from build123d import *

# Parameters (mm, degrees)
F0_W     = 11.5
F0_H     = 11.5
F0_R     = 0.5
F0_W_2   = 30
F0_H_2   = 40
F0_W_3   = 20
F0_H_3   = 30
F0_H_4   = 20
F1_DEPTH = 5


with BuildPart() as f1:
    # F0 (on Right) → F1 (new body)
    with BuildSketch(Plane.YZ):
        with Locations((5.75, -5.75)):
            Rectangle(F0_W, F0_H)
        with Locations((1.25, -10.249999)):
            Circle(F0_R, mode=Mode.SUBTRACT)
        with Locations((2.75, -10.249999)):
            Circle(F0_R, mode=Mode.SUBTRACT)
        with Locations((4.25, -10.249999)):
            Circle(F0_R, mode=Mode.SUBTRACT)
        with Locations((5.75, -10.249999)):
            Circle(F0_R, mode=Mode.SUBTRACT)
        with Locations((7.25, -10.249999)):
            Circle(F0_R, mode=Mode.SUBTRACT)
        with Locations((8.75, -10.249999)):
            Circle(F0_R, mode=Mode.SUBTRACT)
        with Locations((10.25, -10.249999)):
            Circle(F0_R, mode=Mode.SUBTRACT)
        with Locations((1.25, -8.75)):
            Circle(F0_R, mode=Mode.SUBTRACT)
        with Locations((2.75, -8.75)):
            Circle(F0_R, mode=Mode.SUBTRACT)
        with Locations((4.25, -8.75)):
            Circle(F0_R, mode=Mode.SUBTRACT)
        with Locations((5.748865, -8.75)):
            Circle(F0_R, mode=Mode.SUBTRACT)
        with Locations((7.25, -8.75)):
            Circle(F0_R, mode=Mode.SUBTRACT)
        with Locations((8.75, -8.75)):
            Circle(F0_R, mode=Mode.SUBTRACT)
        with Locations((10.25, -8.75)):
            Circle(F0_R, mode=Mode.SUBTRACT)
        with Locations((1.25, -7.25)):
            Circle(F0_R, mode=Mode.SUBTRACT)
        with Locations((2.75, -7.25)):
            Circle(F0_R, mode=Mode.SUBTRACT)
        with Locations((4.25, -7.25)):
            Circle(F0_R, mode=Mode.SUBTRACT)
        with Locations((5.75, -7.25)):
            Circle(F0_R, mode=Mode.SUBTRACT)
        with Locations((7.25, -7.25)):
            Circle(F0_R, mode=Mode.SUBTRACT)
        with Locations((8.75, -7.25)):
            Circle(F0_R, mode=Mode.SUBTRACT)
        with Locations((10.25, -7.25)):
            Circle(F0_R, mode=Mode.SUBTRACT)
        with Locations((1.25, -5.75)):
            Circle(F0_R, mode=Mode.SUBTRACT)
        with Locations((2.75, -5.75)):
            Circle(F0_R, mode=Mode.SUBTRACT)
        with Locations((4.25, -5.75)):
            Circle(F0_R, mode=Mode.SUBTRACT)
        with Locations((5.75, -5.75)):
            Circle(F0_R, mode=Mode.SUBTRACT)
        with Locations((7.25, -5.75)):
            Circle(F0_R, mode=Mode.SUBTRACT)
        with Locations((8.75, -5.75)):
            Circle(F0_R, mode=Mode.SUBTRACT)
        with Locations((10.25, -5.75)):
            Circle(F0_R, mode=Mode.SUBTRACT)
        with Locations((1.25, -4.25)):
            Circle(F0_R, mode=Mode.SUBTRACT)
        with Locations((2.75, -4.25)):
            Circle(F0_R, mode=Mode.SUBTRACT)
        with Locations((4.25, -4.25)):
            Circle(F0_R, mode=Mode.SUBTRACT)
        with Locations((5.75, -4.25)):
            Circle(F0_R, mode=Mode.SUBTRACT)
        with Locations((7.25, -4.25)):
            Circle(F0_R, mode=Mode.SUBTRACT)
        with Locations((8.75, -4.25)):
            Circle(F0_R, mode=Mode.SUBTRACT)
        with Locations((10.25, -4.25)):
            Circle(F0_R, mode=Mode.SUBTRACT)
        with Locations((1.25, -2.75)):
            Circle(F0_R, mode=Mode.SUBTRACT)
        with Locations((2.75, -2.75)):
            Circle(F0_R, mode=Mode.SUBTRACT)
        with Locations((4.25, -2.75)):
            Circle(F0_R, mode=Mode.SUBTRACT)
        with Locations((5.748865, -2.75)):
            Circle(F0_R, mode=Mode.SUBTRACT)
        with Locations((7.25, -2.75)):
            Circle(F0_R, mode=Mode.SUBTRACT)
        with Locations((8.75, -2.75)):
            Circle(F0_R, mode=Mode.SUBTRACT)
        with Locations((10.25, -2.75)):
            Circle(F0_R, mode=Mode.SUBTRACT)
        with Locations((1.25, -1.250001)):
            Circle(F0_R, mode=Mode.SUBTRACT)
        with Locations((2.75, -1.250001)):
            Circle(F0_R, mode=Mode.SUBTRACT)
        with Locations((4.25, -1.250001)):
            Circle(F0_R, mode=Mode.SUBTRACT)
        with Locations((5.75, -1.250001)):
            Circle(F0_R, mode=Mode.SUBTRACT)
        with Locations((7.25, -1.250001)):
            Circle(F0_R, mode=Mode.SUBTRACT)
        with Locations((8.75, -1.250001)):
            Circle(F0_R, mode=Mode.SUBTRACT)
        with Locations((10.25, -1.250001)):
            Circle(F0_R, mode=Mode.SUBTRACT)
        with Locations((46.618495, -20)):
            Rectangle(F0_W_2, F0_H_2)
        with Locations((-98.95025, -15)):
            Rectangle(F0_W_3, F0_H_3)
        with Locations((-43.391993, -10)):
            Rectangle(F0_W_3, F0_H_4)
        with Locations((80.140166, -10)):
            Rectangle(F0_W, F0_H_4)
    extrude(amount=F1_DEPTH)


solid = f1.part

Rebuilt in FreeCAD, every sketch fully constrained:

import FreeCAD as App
import Part
import Sketcher
from FreeCAD import Vector
Q = App.Units.Quantity

doc = App.newDocument("Part")
body = doc.addObject("PartDesign::Body", "Body")
body.AllowCompound = True

sketch1 = body.newObject("Sketcher::SketchObject", "Sketch")
sketch1.AttachmentSupport = (doc.getObject("YZ_Plane"), [""])
sketch1.MapMode = "FlatFace"
sketch1.addGeometry([
    Part.LineSegment(Vector(0, 0, 0), Vector(0, -11.5, 0)),
    Part.LineSegment(Vector(0, -11.5, 0), Vector(11.5, -11.5, 0)),
    Part.LineSegment(Vector(11.5, -11.5, 0), Vector(11.5, 0, 0)),
    Part.LineSegment(Vector(11.5, 0, 0), Vector(0, 0, 0)),
    Part.Circle(Vector(1.2, -10.2, 0), Vector(0, 0, 1), 0.5),
    Part.Circle(Vector(2.8, -10.2, 0), Vector(0, 0, 1), 0.5),
    Part.Circle(Vector(1.2, -8.8, 0), Vector(0, 0, 1), 0.5),
    Part.Circle(Vector(2.8, -8.8, 0), Vector(0, 0, 1), 0.5),
    Part.Circle(Vector(4.2, -10.2, 0), Vector(0, 0, 1), 0.5),
    Part.Circle(Vector(4.2, -8.8, 0), Vector(0, 0, 1), 0.5),
    Part.Circle(Vector(5.7, -8.8, 0), Vector(0, 0, 1), 0.5),
    Part.Circle(Vector(1.2, -7.2, 0), Vector(0, 0, 1), 0.5),
    Part.Circle(Vector(2.8, -7.2, 0), Vector(0, 0, 1), 0.5),
    Part.Circle(Vector(4.2, -7.2, 0), Vector(0, 0, 1), 0.5),
    Part.Circle(Vector(5.8, -10.2, 0), Vector(0, 0, 1), 0.5),
    Part.Circle(Vector(7.2, -10.2, 0), Vector(0, 0, 1), 0.5),
    Part.Circle(Vector(7.2, -8.8, 0), Vector(0, 0, 1), 0.5),
    Part.Circle(Vector(8.8, -10.2, 0), Vector(0, 0, 1), 0.5),
    Part.Circle(Vector(10.2, -10.2, 0), Vector(0, 0, 1), 0.5),
    Part.Circle(Vector(8.8, -8.8, 0), Vector(0, 0, 1), 0.5),
    Part.Circle(Vector(10.2, -8.8, 0), Vector(0, 0, 1), 0.5),
    Part.Circle(Vector(5.8, -7.2, 0), Vector(0, 0, 1), 0.5),
    Part.Circle(Vector(7.2, -7.2, 0), Vector(0, 0, 1), 0.5),
    Part.Circle(Vector(8.8, -7.2, 0), Vector(0, 0, 1), 0.5),
    Part.Circle(Vector(10.2, -7.2, 0), Vector(0, 0, 1), 0.5),
    Part.Circle(Vector(1.2, -5.8, 0), Vector(0, 0, 1), 0.5),
    Part.Circle(Vector(2.8, -5.8, 0), Vector(0, 0, 1), 0.5),
    Part.Circle(Vector(1.2, -4.2, 0), Vector(0, 0, 1), 0.5),
    Part.Circle(Vector(2.8, -4.2, 0), Vector(0, 0, 1), 0.5),
    Part.Circle(Vector(4.2, -5.8, 0), Vector(0, 0, 1), 0.5),
    Part.Circle(Vector(4.2, -4.2, 0), Vector(0, 0, 1), 0.5),
    Part.Circle(Vector(1.2, -2.8, 0), Vector(0, 0, 1), 0.5),
    Part.Circle(Vector(2.8, -2.8, 0), Vector(0, 0, 1), 0.5),
    Part.Circle(Vector(1.2, -1.3, 0), Vector(0, 0, 1), 0.5),
    Part.Circle(Vector(2.8, -1.3, 0), Vector(0, 0, 1), 0.5),
    Part.Circle(Vector(4.2, -2.8, 0), Vector(0, 0, 1), 0.5),
    Part.Circle(Vector(5.7, -2.8, 0), Vector(0, 0, 1), 0.5),
    Part.Circle(Vector(4.2, -1.3, 0), Vector(0, 0, 1), 0.5),
    Part.Circle(Vector(5.8, -5.8, 0), Vector(0, 0, 1), 0.5),
    Part.Circle(Vector(7.2, -5.8, 0), Vector(0, 0, 1), 0.5),
    Part.Circle(Vector(5.8, -4.2, 0), Vector(0, 0, 1), 0.5),
    Part.Circle(Vector(7.2, -4.2, 0), Vector(0, 0, 1), 0.5),
    Part.Circle(Vector(8.8, -5.8, 0), Vector(0, 0, 1), 0.5),
    Part.Circle(Vector(10.2, -5.8, 0), Vector(0, 0, 1), 0.5),
    Part.Circle(Vector(8.8, -4.2, 0), Vector(0, 0, 1), 0.5),
    Part.Circle(Vector(10.2, -4.2, 0), Vector(0, 0, 1), 0.5),
    Part.Circle(Vector(7.2, -2.8, 0), Vector(0, 0, 1), 0.5),
    Part.Circle(Vector(5.8, -1.3, 0), Vector(0, 0, 1), 0.5),
    Part.Circle(Vector(7.2, -1.3, 0), Vector(0, 0, 1), 0.5),
    Part.Circle(Vector(8.8, -2.8, 0), Vector(0, 0, 1), 0.5),
    Part.Circle(Vector(10.2, -2.8, 0), Vector(0, 0, 1), 0.5),
    Part.Circle(Vector(8.8, -1.3, 0), Vector(0, 0, 1), 0.5),
    Part.Circle(Vector(10.2, -1.3, 0), Vector(0, 0, 1), 0.5),
    Part.LineSegment(Vector(31.6, 0, 0), Vector(31.6, -40, 0)),
    Part.LineSegment(Vector(31.6, -40, 0), Vector(61.6, -40, 0)),
    Part.LineSegment(Vector(61.6, -40, 0), Vector(61.6, 0, 0)),
    Part.LineSegment(Vector(61.6, 0, 0), Vector(31.6, 0, 0)),
    Part.LineSegment(Vector(-109, 0, 0), Vector(-109, -30, 0)),
    Part.LineSegment(Vector(-109, -30, 0), Vector(-89, -30, 0)),
    Part.LineSegment(Vector(-89, -30, 0), Vector(-89, 0, 0)),
    Part.LineSegment(Vector(-89, 0, 0), Vector(-109, 0, 0)),
    Part.LineSegment(Vector(-53.4, 0, 0), Vector(-53.4, -20, 0)),
    Part.LineSegment(Vector(-53.4, -20, 0), Vector(-33.4, -20, 0)),
    Part.LineSegment(Vector(-33.4, -20, 0), Vector(-33.4, 0, 0)),
    Part.LineSegment(Vector(-33.4, 0, 0), Vector(-53.4, 0, 0)),
    Part.LineSegment(Vector(74.4, 0, 0), Vector(74.4, -20, 0)),
    Part.LineSegment(Vector(74.4, -20, 0), Vector(85.9, -20, 0)),
    Part.LineSegment(Vector(85.9, -20, 0), Vector(85.9, 0, 0)),
    Part.LineSegment(Vector(85.9, 0, 0), Vector(74.4, 0, 0)),
], False)
sketch1.addConstraint([
    Sketcher.Constraint("Coincident", 0, 2, 1, 1),
    Sketcher.Constraint("Coincident", 1, 2, 2, 1),
    Sketcher.Constraint("Coincident", 2, 2, 3, 1),
    Sketcher.Constraint("Coincident", 3, 2, 0, 1),
    Sketcher.Constraint("Coincident", 53, 2, 54, 1),
    Sketcher.Constraint("Coincident", 54, 2, 55, 1),
    Sketcher.Constraint("Coincident", 55, 2, 56, 1),
    Sketcher.Constraint("Coincident", 56, 2, 53, 1),
    Sketcher.Constraint("Coincident", 57, 2, 58, 1),
    Sketcher.Constraint("Coincident", 58, 2, 59, 1),
    Sketcher.Constraint("Coincident", 59, 2, 60, 1),
    Sketcher.Constraint("Coincident", 60, 2, 57, 1),
    Sketcher.Constraint("Coincident", 61, 2, 62, 1),
    Sketcher.Constraint("Coincident", 62, 2, 63, 1),
    Sketcher.Constraint("Coincident", 63, 2, 64, 1),
    Sketcher.Constraint("Coincident", 64, 2, 61, 1),
    Sketcher.Constraint("Coincident", 65, 2, 66, 1),
    Sketcher.Constraint("Coincident", 66, 2, 67, 1),
    Sketcher.Constraint("Coincident", 67, 2, 68, 1),
    Sketcher.Constraint("Coincident", 68, 2, 65, 1),
    Sketcher.Constraint("Vertical", 0),
    Sketcher.Constraint("Horizontal", 1),
    Sketcher.Constraint("Vertical", 2),
    Sketcher.Constraint("Horizontal", 3),
    Sketcher.Constraint("Vertical", 53),
    Sketcher.Constraint("Horizontal", 54),
    Sketcher.Constraint("Vertical", 55),
    Sketcher.Constraint("Horizontal", 56),
    Sketcher.Constraint("Vertical", 57),
    Sketcher.Constraint("Horizontal", 58),
    Sketcher.Constraint("Vertical", 59),
    Sketcher.Constraint("Horizontal", 60),
    Sketcher.Constraint("Vertical", 61),
    Sketcher.Constraint("Horizontal", 62),
    Sketcher.Constraint("Vertical", 63),
    Sketcher.Constraint("Horizontal", 64),
    Sketcher.Constraint("Vertical", 65),
    Sketcher.Constraint("Horizontal", 66),
    Sketcher.Constraint("Vertical", 67),
    Sketcher.Constraint("Horizontal", 68),
    Sketcher.Constraint("Coincident", 3, 2, -1, 1),
    Sketcher.Constraint("Equal", 4, 5),
    Sketcher.Constraint("Equal", 5, 6),
    Sketcher.Constraint("Equal", 6, 7),
    Sketcher.Constraint("Equal", 7, 8),
    Sketcher.Constraint("Equal", 8, 9),
    Sketcher.Constraint("Equal", 9, 10),
    Sketcher.Constraint("Equal", 10, 11),
    Sketcher.Constraint("Equal", 11, 12),
    Sketcher.Constraint("Equal", 12, 13),
    Sketcher.Constraint("Equal", 13, 14),
    Sketcher.Constraint("Equal", 14, 15),
    Sketcher.Constraint("Equal", 15, 16),
    Sketcher.Constraint("Equal", 16, 17),
    Sketcher.Constraint("Equal", 17, 18),
    Sketcher.Constraint("Equal", 18, 19),
    Sketcher.Constraint("Equal", 19, 20),
    Sketcher.Constraint("Equal", 20, 21),
    Sketcher.Constraint("Equal", 21, 22),
    Sketcher.Constraint("Equal", 22, 23),
    Sketcher.Constraint("Equal", 23, 24),
    Sketcher.Constraint("Equal", 24, 25),
    Sketcher.Constraint("Equal", 25, 26),
    Sketcher.Constraint("Equal", 26, 27),
    Sketcher.Constraint("Equal", 27, 28),
    Sketcher.Constraint("Equal", 28, 29),
    Sketcher.Constraint("Equal", 29, 30),
    Sketcher.Constraint("Equal", 30, 31),
    Sketcher.Constraint("Equal", 31, 32),
    Sketcher.Constraint("Equal", 32, 33),
    Sketcher.Constraint("Equal", 33, 34),
    Sketcher.Constraint("Equal", 34, 35),
    Sketcher.Constraint("Equal", 35, 36),
    Sketcher.Constraint("Equal", 36, 37),
    Sketcher.Constraint("Equal", 37, 38),
    Sketcher.Constraint("Equal", 38, 39),
    Sketcher.Constraint("Equal", 39, 40),
    Sketcher.Constraint("Equal", 40, 41),
    Sketcher.Constraint("Equal", 41, 42),
    Sketcher.Constraint("Equal", 42, 43),
    Sketcher.Constraint("Equal", 43, 44),
    Sketcher.Constraint("Equal", 44, 45),
    Sketcher.Constraint("Equal", 45, 46),
    Sketcher.Constraint("Equal", 46, 47),
    Sketcher.Constraint("Equal", 47, 48),
    Sketcher.Constraint("Equal", 48, 49),
    Sketcher.Constraint("Equal", 49, 50),
    Sketcher.Constraint("Equal", 50, 51),
    Sketcher.Constraint("Equal", 51, 52),
    Sketcher.Constraint("PointOnObject", 55, 2, -1),
    Sketcher.Constraint("PointOnObject", 59, 2, -1),
    Sketcher.Constraint("PointOnObject", 63, 2, -1),
    Sketcher.Constraint("PointOnObject", 67, 2, -1),
    Sketcher.Constraint("Horizontal", 4, 3, 5, 3),
    Sketcher.Constraint("Horizontal", 6, 3, 7, 3),
    Sketcher.Constraint("Horizontal", 5, 3, 8, 3),
    Sketcher.Constraint("Horizontal", 7, 3, 9, 3),
    Sketcher.Constraint("Horizontal", 9, 3, 10, 3),
    Sketcher.Constraint("Horizontal", 11, 3, 12, 3),
    Sketcher.Constraint("Horizontal", 12, 3, 13, 3),
    Sketcher.Constraint("Horizontal", 8, 3, 14, 3),
    Sketcher.Constraint("Horizontal", 14, 3, 15, 3),
    Sketcher.Constraint("Horizontal", 10, 3, 16, 3),
    Sketcher.Constraint("Horizontal", 15, 3, 17, 3),
    Sketcher.Constraint("Horizontal", 17, 3, 18, 3),
    Sketcher.Constraint("Horizontal", 16, 3, 19, 3),
    Sketcher.Constraint("Horizontal", 19, 3, 20, 3),
    Sketcher.Constraint("Horizontal", 13, 3, 21, 3),
    Sketcher.Constraint("Horizontal", 21, 3, 22, 3),
    Sketcher.Constraint("Horizontal", 22, 3, 23, 3),
    Sketcher.Constraint("Horizontal", 23, 3, 24, 3),
    Sketcher.Constraint("Horizontal", 25, 3, 26, 3),
    Sketcher.Constraint("Horizontal", 27, 3, 28, 3),
    Sketcher.Constraint("Horizontal", 26, 3, 29, 3),
    Sketcher.Constraint("Horizontal", 28, 3, 30, 3),
    Sketcher.Constraint("Horizontal", 31, 3, 32, 3),
    Sketcher.Constraint("Horizontal", 33, 3, 34, 3),
    Sketcher.Constraint("Horizontal", 32, 3, 35, 3),
    Sketcher.Constraint("Horizontal", 35, 3, 36, 3),
    Sketcher.Constraint("Horizontal", 34, 3, 37, 3),
    Sketcher.Constraint("Horizontal", 29, 3, 38, 3),
    Sketcher.Constraint("Horizontal", 38, 3, 39, 3),
    Sketcher.Constraint("Horizontal", 30, 3, 40, 3),
    Sketcher.Constraint("Horizontal", 40, 3, 41, 3),
    Sketcher.Constraint("Horizontal", 39, 3, 42, 3),
    Sketcher.Constraint("Horizontal", 42, 3, 43, 3),
    Sketcher.Constraint("Horizontal", 41, 3, 44, 3),
    Sketcher.Constraint("Horizontal", 44, 3, 45, 3),
    Sketcher.Constraint("Horizontal", 36, 3, 46, 3),
    Sketcher.Constraint("Horizontal", 37, 3, 47, 3),
    Sketcher.Constraint("Horizontal", 47, 3, 48, 3),
    Sketcher.Constraint("Horizontal", 46, 3, 49, 3),
    Sketcher.Constraint("Horizontal", 49, 3, 50, 3),
    Sketcher.Constraint("Horizontal", 48, 3, 51, 3),
    Sketcher.Constraint("Horizontal", 51, 3, 52, 3),
    Sketcher.Constraint("Horizontal", 62, 2, 65, 2),
    Sketcher.Constraint("Vertical", 4, 3, 6, 3),
    Sketcher.Constraint("Vertical", 5, 3, 7, 3),
    Sketcher.Constraint("Vertical", 8, 3, 9, 3),
    Sketcher.Constraint("Vertical", 6, 3, 11, 3),
    Sketcher.Constraint("Vertical", 7, 3, 12, 3),
    Sketcher.Constraint("Vertical", 9, 3, 13, 3),
    Sketcher.Constraint("Vertical", 15, 3, 16, 3),
    Sketcher.Constraint("Vertical", 17, 3, 19, 3),
    Sketcher.Constraint("Vertical", 18, 3, 20, 3),
    Sketcher.Constraint("Vertical", 14, 3, 21, 3),
    Sketcher.Constraint("Vertical", 16, 3, 22, 3),
    Sketcher.Constraint("Vertical", 19, 3, 23, 3),
    Sketcher.Constraint("Vertical", 20, 3, 24, 3),
    Sketcher.Constraint("Vertical", 11, 3, 25, 3),
    Sketcher.Constraint("Vertical", 12, 3, 26, 3),
    Sketcher.Constraint("Vertical", 25, 3, 27, 3),
    Sketcher.Constraint("Vertical", 26, 3, 28, 3),
    Sketcher.Constraint("Vertical", 13, 3, 29, 3),
    Sketcher.Constraint("Vertical", 29, 3, 30, 3),
    Sketcher.Constraint("Vertical", 27, 3, 31, 3),
    Sketcher.Constraint("Vertical", 28, 3, 32, 3),
    Sketcher.Constraint("Vertical", 31, 3, 33, 3),
    Sketcher.Constraint("Vertical", 32, 3, 34, 3),
    Sketcher.Constraint("Vertical", 30, 3, 35, 3),
    Sketcher.Constraint("Vertical", 10, 3, 36, 3),
    Sketcher.Constraint("Vertical", 35, 3, 37, 3),
    Sketcher.Constraint("Vertical", 21, 3, 38, 3),
    Sketcher.Constraint("Vertical", 22, 3, 39, 3),
    Sketcher.Constraint("Vertical", 38, 3, 40, 3),
    Sketcher.Constraint("Vertical", 39, 3, 41, 3),
    Sketcher.Constraint("Vertical", 23, 3, 42, 3),
    Sketcher.Constraint("Vertical", 24, 3, 43, 3),
    Sketcher.Constraint("Vertical", 42, 3, 44, 3),
    Sketcher.Constraint("Vertical", 43, 3, 45, 3),
    Sketcher.Constraint("Vertical", 41, 3, 46, 3),
    Sketcher.Constraint("Vertical", 40, 3, 47, 3),
    Sketcher.Constraint("Vertical", 46, 3, 48, 3),
    Sketcher.Constraint("Vertical", 44, 3, 49, 3),
    Sketcher.Constraint("Vertical", 45, 3, 50, 3),
    Sketcher.Constraint("Vertical", 49, 3, 51, 3),
    Sketcher.Constraint("Vertical", 50, 3, 52, 3),
    Sketcher.Constraint("Equal", 60, 62),
    Sketcher.Constraint("Equal", 3, 66),
    Sketcher.Constraint("Equal", 68, 0),
    Sketcher.Constraint("Equal", 56, 57),
    Sketcher.Constraint("Equal", 64, 61),
    Sketcher.Constraint("Diameter", 4, Q("1 mm")),
    Sketcher.Constraint("DistanceX", 54, 1, 54, 2, Q("30 mm")),
    Sketcher.Constraint("DistanceX", 58, 1, 58, 2, Q("20 mm")),
    Sketcher.Constraint("DistanceY", 53, 2, 53, 1, Q("40 mm")),
    Sketcher.Constraint("DistanceX", 1, 1, 1, 2, Q("11.5 mm")),
    Sketcher.Constraint("DistanceX", -1, 1, 4, 3, Q("1.25 mm")),
    Sketcher.Constraint("DistanceY", 4, 3, -1, 1, Q("10.249999 mm")),
    Sketcher.Constraint("DistanceX", -1, 1, 5, 3, Q("2.75 mm")),
    Sketcher.Constraint("DistanceY", 6, 3, -1, 1, Q("8.75 mm")),
    Sketcher.Constraint("DistanceX", -1, 1, 8, 3, Q("4.25 mm")),
    Sketcher.Constraint("DistanceY", 11, 3, -1, 1, Q("7.25 mm")),
    Sketcher.Constraint("DistanceX", -1, 1, 14, 3, Q("5.75 mm")),
    Sketcher.Constraint("DistanceX", -1, 1, 15, 3, Q("7.25 mm")),
    Sketcher.Constraint("DistanceX", -1, 1, 17, 3, Q("8.75 mm")),
    Sketcher.Constraint("DistanceX", -1, 1, 18, 3, Q("10.25 mm")),
    Sketcher.Constraint("DistanceY", 25, 3, -1, 1, Q("5.75 mm")),
    Sketcher.Constraint("DistanceY", 27, 3, -1, 1, Q("4.25 mm")),
    Sketcher.Constraint("DistanceY", 31, 3, -1, 1, Q("2.75 mm")),
    Sketcher.Constraint("DistanceY", 33, 3, -1, 1, Q("1.250001 mm")),
    Sketcher.Constraint("DistanceX", 57, 2, -1, 1, Q("108.95025 mm")),
    Sketcher.Constraint("DistanceX", -1, 1, 10, 3, Q("5.748865 mm")),
    Sketcher.Constraint("DistanceX", -1, 1, 53, 2, Q("31.618495 mm")),
    Sketcher.Constraint("DistanceX", 61, 2, -1, 1, Q("53.391993 mm")),
    Sketcher.Constraint("DistanceX", -1, 1, 65, 2, Q("74.390166 mm")),
])
pad1 = body.newObject("PartDesign::Pad", "Pad")
pad1.Profile = sketch1
pad1.Length = 5

doc.recompute()
